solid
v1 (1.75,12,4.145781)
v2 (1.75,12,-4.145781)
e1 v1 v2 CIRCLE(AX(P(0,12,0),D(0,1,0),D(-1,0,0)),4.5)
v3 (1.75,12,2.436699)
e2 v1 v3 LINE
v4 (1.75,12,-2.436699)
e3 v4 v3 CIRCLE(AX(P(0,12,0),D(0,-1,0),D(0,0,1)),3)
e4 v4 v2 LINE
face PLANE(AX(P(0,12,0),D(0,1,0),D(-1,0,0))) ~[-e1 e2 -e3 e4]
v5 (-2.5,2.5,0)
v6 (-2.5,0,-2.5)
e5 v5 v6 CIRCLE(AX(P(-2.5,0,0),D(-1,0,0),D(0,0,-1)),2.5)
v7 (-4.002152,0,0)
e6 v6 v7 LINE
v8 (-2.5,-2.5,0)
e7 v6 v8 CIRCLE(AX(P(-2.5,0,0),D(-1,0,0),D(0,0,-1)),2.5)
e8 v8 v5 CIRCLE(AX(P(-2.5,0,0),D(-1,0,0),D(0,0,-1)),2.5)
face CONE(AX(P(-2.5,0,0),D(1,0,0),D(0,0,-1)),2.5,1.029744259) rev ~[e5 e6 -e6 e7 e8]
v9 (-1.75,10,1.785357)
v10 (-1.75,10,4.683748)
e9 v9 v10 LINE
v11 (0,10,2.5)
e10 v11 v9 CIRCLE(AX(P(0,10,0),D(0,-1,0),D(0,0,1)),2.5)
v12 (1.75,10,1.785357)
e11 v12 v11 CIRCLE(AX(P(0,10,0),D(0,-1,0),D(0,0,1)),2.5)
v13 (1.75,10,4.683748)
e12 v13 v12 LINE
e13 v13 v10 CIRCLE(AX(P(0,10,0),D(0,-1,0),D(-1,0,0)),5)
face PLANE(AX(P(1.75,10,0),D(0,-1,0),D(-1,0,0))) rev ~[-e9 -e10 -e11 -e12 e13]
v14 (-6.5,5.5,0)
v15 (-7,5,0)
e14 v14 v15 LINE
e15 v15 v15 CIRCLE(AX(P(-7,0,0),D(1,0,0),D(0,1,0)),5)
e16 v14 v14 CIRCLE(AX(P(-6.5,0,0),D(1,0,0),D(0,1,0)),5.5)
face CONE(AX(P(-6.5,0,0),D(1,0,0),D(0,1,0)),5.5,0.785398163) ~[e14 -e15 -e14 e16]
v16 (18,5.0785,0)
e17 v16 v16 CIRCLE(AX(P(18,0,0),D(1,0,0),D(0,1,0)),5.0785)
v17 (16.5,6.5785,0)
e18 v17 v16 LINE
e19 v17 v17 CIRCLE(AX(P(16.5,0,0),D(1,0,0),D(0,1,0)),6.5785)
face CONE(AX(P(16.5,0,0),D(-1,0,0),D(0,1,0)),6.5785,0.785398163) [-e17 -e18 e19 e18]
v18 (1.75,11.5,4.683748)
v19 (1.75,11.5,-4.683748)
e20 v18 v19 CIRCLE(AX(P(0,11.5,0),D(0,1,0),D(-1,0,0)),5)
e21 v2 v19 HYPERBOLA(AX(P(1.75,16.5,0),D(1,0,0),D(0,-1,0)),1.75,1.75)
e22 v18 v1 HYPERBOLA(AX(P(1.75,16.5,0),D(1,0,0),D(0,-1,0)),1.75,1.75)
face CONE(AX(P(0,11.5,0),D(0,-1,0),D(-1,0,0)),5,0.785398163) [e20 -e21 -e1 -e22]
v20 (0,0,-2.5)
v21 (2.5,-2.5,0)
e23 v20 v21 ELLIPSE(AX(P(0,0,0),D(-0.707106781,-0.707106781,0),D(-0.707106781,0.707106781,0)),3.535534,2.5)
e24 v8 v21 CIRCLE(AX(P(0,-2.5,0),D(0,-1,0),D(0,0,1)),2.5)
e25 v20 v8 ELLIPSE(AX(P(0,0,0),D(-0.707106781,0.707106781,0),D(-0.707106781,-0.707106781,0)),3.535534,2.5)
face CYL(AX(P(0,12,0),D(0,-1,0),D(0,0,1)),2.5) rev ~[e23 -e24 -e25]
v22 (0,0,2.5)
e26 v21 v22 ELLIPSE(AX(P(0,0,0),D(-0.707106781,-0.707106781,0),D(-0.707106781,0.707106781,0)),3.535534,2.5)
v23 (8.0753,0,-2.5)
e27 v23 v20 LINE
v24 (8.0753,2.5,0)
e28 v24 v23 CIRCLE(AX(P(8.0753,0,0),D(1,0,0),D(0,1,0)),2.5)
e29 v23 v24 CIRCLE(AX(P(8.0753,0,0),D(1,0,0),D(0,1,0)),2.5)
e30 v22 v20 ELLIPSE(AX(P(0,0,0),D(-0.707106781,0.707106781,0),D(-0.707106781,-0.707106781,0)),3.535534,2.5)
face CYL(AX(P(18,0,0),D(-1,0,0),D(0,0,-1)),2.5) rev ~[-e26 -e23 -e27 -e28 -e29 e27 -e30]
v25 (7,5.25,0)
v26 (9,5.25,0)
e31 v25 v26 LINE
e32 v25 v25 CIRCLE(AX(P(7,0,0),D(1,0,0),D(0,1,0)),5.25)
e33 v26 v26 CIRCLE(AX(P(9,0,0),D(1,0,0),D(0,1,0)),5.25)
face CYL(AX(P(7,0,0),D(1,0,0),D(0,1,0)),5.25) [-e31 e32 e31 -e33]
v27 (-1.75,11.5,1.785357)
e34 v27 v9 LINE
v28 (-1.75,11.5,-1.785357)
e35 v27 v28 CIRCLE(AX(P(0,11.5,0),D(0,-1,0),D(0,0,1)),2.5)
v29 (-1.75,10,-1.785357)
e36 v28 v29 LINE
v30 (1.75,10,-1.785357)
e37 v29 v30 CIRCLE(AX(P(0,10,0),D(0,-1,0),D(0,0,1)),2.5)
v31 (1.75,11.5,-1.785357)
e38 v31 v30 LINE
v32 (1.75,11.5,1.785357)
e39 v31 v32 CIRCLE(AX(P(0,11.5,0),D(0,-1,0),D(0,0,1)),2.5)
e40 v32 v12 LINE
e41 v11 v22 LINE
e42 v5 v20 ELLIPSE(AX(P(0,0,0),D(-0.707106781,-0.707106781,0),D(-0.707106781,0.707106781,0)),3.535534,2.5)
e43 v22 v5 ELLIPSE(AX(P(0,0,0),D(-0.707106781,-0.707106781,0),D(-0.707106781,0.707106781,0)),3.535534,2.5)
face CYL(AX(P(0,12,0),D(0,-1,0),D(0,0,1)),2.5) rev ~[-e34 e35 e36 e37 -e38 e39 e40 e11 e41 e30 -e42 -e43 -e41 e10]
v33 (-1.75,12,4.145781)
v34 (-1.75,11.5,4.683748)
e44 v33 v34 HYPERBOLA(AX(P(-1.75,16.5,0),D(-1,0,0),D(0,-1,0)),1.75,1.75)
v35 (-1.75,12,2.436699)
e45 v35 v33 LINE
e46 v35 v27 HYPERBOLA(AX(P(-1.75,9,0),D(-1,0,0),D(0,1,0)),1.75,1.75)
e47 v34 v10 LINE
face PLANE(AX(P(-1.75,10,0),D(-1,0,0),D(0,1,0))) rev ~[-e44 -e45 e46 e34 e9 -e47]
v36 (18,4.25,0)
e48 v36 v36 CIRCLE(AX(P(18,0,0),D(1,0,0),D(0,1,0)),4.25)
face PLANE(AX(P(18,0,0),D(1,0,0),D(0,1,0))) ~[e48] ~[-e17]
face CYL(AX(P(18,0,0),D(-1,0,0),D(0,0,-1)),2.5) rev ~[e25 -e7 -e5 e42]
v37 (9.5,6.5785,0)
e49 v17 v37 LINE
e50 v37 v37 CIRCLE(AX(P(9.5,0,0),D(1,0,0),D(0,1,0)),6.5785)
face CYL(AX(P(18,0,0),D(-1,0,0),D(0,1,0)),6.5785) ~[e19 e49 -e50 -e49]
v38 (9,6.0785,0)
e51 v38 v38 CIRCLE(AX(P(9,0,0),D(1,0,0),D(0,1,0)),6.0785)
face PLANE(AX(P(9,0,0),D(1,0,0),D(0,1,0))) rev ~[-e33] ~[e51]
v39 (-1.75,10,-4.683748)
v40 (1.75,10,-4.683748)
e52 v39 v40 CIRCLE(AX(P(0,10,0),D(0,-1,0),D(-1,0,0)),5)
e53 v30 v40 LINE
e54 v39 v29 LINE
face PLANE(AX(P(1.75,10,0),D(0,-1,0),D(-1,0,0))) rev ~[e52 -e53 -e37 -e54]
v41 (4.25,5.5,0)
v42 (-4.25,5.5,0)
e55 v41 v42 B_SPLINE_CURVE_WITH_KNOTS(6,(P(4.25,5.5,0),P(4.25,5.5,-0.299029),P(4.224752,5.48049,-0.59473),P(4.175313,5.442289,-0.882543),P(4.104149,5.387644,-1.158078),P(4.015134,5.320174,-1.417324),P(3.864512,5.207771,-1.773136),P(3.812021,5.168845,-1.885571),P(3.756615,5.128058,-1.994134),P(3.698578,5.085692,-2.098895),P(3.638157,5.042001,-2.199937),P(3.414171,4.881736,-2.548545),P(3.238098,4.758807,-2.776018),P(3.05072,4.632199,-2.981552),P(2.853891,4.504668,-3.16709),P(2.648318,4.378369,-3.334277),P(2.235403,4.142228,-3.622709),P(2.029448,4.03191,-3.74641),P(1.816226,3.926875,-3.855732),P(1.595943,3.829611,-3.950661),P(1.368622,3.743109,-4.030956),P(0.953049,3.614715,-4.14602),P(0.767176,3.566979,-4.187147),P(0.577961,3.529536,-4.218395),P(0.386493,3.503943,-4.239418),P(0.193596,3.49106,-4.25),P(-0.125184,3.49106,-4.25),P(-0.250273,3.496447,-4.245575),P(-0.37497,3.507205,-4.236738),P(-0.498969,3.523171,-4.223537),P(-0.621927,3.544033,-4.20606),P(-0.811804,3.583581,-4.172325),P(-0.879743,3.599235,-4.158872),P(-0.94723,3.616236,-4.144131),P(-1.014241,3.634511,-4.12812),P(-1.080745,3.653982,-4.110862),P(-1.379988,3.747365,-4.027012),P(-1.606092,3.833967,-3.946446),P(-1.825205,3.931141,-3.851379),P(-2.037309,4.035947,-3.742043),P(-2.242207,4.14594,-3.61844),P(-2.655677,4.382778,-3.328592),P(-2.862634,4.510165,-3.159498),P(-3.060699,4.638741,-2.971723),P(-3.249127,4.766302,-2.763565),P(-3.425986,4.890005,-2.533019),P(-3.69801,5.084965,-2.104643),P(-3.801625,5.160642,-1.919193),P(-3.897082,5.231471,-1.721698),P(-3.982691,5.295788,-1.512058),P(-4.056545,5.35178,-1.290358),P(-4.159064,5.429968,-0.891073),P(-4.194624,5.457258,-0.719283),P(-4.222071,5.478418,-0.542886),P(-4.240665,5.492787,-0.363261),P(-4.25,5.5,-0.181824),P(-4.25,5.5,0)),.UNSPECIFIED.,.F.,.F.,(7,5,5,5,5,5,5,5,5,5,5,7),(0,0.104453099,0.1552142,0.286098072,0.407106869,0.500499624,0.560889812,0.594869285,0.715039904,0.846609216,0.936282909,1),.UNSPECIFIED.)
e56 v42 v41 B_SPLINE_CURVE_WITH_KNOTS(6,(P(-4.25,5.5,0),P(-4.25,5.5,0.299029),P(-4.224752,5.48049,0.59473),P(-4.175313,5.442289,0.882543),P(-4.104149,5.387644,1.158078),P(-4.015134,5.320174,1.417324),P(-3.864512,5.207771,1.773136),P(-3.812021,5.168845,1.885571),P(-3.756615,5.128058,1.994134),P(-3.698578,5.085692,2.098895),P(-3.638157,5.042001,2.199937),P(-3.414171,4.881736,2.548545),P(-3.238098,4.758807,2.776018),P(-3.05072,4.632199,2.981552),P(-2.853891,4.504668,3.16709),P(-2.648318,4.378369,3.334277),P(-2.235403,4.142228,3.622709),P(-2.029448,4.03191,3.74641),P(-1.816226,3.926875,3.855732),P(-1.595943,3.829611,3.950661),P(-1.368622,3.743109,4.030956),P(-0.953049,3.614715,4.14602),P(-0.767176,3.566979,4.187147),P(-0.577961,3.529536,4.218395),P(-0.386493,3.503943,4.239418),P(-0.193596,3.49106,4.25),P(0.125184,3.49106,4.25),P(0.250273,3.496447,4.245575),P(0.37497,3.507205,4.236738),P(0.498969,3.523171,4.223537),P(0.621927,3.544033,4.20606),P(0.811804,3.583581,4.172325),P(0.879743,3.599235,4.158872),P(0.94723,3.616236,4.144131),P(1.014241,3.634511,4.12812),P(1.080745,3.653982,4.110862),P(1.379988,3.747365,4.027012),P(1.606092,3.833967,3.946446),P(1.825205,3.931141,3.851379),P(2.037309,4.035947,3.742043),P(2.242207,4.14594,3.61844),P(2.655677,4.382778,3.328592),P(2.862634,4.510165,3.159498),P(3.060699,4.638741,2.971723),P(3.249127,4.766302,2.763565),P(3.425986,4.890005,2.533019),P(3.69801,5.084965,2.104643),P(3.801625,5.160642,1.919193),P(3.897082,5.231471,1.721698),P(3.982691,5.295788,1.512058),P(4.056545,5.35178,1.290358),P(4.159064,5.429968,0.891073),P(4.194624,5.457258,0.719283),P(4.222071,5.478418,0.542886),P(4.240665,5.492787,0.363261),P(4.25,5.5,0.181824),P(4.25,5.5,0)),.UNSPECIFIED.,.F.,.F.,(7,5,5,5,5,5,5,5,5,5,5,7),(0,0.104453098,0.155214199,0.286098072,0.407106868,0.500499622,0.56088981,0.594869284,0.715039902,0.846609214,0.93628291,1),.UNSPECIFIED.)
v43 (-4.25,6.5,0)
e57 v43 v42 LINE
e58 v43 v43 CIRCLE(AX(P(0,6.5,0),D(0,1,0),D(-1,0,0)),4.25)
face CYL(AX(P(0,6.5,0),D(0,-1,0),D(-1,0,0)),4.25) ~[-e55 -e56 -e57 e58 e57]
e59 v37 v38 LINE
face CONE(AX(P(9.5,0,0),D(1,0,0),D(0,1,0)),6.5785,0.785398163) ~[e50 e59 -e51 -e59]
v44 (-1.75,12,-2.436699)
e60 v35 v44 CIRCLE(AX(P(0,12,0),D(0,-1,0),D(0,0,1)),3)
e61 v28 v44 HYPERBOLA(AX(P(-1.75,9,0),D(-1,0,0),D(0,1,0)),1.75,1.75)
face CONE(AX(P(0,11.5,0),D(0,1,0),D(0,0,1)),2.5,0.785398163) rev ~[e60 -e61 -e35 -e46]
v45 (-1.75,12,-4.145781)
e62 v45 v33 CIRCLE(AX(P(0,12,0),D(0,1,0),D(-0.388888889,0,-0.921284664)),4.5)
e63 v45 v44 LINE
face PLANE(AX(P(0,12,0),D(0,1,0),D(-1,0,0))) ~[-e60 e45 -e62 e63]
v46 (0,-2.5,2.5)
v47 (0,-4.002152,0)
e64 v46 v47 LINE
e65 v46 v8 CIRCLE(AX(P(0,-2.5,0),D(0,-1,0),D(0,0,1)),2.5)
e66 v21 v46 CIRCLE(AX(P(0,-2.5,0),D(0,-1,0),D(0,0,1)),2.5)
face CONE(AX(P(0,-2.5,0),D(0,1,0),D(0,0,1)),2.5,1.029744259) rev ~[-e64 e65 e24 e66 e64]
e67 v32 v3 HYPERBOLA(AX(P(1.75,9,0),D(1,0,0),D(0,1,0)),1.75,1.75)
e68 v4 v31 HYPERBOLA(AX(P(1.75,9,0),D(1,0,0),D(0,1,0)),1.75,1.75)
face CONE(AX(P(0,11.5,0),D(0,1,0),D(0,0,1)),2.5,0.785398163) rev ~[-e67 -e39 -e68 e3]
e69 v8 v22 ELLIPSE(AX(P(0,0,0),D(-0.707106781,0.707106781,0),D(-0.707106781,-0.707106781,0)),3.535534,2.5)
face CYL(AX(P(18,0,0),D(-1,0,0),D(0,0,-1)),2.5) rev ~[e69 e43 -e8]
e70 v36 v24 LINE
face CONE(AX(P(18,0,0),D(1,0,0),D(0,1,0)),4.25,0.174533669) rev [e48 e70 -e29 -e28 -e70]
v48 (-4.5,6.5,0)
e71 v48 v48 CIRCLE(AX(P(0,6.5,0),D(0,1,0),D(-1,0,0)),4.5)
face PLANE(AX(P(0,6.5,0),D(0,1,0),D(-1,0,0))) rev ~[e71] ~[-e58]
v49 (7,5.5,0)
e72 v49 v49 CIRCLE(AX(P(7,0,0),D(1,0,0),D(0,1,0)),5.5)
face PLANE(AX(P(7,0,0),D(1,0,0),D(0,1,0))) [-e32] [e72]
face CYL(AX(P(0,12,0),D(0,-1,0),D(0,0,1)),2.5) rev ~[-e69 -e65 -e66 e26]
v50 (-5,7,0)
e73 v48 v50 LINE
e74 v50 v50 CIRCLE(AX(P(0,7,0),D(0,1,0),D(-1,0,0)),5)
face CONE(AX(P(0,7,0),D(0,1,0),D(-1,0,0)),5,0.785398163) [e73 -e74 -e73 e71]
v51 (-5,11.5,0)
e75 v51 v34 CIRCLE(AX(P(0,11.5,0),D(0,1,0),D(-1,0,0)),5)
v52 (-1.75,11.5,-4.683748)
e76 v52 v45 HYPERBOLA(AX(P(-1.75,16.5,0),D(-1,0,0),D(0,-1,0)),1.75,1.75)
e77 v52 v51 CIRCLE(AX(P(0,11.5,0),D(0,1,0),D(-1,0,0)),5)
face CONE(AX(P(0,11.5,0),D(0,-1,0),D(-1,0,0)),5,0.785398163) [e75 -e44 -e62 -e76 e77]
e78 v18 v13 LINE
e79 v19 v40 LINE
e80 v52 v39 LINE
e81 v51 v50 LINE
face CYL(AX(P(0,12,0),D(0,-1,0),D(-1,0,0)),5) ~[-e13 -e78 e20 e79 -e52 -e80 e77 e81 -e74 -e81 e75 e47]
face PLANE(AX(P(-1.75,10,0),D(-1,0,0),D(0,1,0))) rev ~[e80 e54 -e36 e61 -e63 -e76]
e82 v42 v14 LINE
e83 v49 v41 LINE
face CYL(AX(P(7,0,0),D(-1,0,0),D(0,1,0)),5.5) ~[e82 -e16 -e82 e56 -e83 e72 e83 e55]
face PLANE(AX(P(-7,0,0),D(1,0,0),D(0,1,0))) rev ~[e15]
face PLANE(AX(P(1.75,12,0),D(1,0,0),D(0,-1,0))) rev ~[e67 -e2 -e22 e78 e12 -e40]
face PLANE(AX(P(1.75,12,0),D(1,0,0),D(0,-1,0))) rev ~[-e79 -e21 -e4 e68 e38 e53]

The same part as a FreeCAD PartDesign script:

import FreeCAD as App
import Part
import Sketcher
from FreeCAD import Vector
Q = App.Units.Quantity


def edges_at(feature, points):
    """Names of the edges that pass closest to the given points."""
    edges = feature.Shape.Edges
    near = lambda p: min(range(len(edges)), key=lambda i: edges[i].distToShape(Part.Vertex(*p))[0])
    return sorted({f"Edge{near(p) + 1}" for p in points})

doc = App.newDocument("Part")
body = doc.addObject("PartDesign::Body", "Body")

sketch1 = body.newObject("Sketcher::SketchObject", "Sketch")
sketch1.AttachmentSupport = (doc.getObject("XY_Plane"), [""])
sketch1.MapMode = "FlatFace"
sketch1.addGeometry(Part.LineSegment(Vector(-7, 0, 0), Vector(18, 0, 0)), False)
sketch1.addGeometry(Part.LineSegment(Vector(18, 0, 0), Vector(18, 6.58, 0)), False)
sketch1.addGeometry(Part.LineSegment(Vector(18, 6.58, 0), Vector(9, 6.58, 0)), False)
sketch1.addGeometry(Part.LineSegment(Vector(9, 6.58, 0), Vector(9, 5.25, 0)), False)
sketch1.addGeometry(Part.LineSegment(Vector(9, 5.25, 0), Vector(7, 5.25, 0)), False)
sketch1.addGeometry(Part.LineSegment(Vector(7, 5.25, 0), Vector(7, 5.5, 0)), False)
sketch1.addGeometry(Part.LineSegment(Vector(7, 5.5, 0), Vector(-7, 5.5, 0)), False)
sketch1.addGeometry(Part.LineSegment(Vector(-7, 5.5, 0), Vector(-7, 0, 0)), False)
sketch1.addConstraint(Sketcher.Constraint("Coincident", 0, 2, 1, 1))
sketch1.addConstraint(Sketcher.Constraint("Coincident", 1, 2, 2, 1))
sketch1.addConstraint(Sketcher.Constraint("Coincident", 2, 2, 3, 1))
sketch1.addConstraint(Sketcher.Constraint("Coincident", 3, 2, 4, 1))
sketch1.addConstraint(Sketcher.Constraint("Coincident", 4, 2, 5, 1))
sketch1.addConstraint(Sketcher.Constraint("Coincident", 5, 2, 6, 1))
sketch1.addConstraint(Sketcher.Constraint("Coincident", 6, 2, 7, 1))
sketch1.addConstraint(Sketcher.Constraint("Coincident", 7, 2, 0, 1))
sketch1.addConstraint(Sketcher.Constraint("Horizontal", 0))
sketch1.addConstraint(Sketcher.Constraint("Vertical", 1))
sketch1.addConstraint(Sketcher.Constraint("Horizontal", 2))
sketch1.addConstraint(Sketcher.Constraint("Vertical", 3))
sketch1.addConstraint(Sketcher.Constraint("Horizontal", 4))
sketch1.addConstraint(Sketcher.Constraint("Vertical", 5))
sketch1.addConstraint(Sketcher.Constraint("Horizontal", 6))
sketch1.addConstraint(Sketcher.Constraint("Vertical", 7))
sketch1.addConstraint(Sketcher.Constraint("PointOnObject", 0, 2, -1))
sketch1.addConstraint(Sketcher.Constraint("DistanceX", 0, 1, 0, 2, 25.0))
sketch1.addConstraint(Sketcher.Constraint("DistanceX", 2, 2, 2, 1, 9.0))
sketch1.addConstraint(Sketcher.Constraint("DistanceX", 4, 2, 4, 1, 2.0))
sketch1.addConstraint(Sketcher.Constraint("DistanceX", -1, 1, 0, 2, 18.0))
sketch1.addConstraint(Sketcher.Constraint("DistanceY", 7, 2, 7, 1, 5.5))
sketch1.addConstraint(Sketcher.Constraint("DistanceY", 5, 1, 5, 2, 0.25))
sketch1.addConstraint(Sketcher.Constraint("DistanceY", 1, 1, 1, 2, 6.5785))
revolution = body.newObject("PartDesign::Revolution", "Revolution")
revolution.Profile = sketch1
revolution.ReferenceAxis = (sketch1, ["H_Axis"])
revolution.Angle = 360
doc.recompute()

chamfer = body.newObject("PartDesign::Chamfer", "Chamfer")
chamfer.Base = (revolution, edges_at(revolution, [(18, -6.579, 0)]))
chamfer.Size = 1.5
doc.recompute()

chamfer2 = body.newObject("PartDesign::Chamfer", "Chamfer001")
chamfer2.Base = (chamfer, edges_at(chamfer, [(9, -6.579, 0)]))
chamfer2.Size = 0.5

sketch2 = body.newObject("Sketcher::SketchObject", "Sketch001")
sketch2.AttachmentSupport = (doc.getObject("XY_Plane"), [""])
sketch2.MapMode = "FlatFace"
sketch2.addGeometry(Part.LineSegment(Vector(0, 0, 0), Vector(0, 12, 0)), False)
sketch2.addGeometry(Part.LineSegment(Vector(0, 12, 0), Vector(-5, 12, 0)), False)
sketch2.addGeometry(Part.LineSegment(Vector(-5, 12, 0), Vector(-5, 6.5, 0)), False)
sketch2.addGeometry(Part.LineSegment(Vector(-5, 6.5, 0), Vector(-4.2, 6.5, 0)), False)
sketch2.addGeometry(Part.LineSegment(Vector(-4.2, 6.5, 0), Vector(-4.2, 0, 0)), False)
sketch2.addGeometry(Part.LineSegment(Vector(-4.2, 0, 0), Vector(0, 0, 0)), False)
sketch2.addConstraint(Sketcher.Constraint("Coincident", 0, 2, 1, 1))
sketch2.addConstraint(Sketcher.Constraint("Coincident", 1, 2, 2, 1))
sketch2.addConstraint(Sketcher.Constraint("Coincident", 2, 2, 3, 1))
sketch2.addConstraint(Sketcher.Constraint("Coincident", 3, 2, 4, 1))
sketch2.addConstraint(Sketcher.Constraint("Coincident", 4, 2, 5, 1))
sketch2.addConstraint(Sketcher.Constraint("Coincident", 5, 2, 0, 1))
sketch2.addConstraint(Sketcher.Constraint("Vertical", 0))
sketch2.addConstraint(Sketcher.Constraint("Horizontal", 1))
sketch2.addConstraint(Sketcher.Constraint("Vertical", 2))
sketch2.addConstraint(Sketcher.Constraint("Horizontal", 3))
sketch2.addConstraint(Sketcher.Constraint("Vertical", 4))
sketch2.addConstraint(Sketcher.Constraint("Horizontal", 5))
sketch2.addConstraint(Sketcher.Constraint("Coincident", 5, 2, -1, 1))
sketch2.addConstraint(Sketcher.Constraint("DistanceY", 0, 1, 0, 2, 12.0))
sketch2.addConstraint(Sketcher.Constraint("DistanceY", 2, 2, 2, 1, 5.5))
sketch2.addConstraint(Sketcher.Constraint("DistanceX", 1, 2, 1, 1, 5.0))
sketch2.addConstraint(Sketcher.Constraint("DistanceX", 3, 1, 3, 2, 0.75))
revolution2 = body.newObject("PartDesign::Revolution", "Revolution001")
revolution2.Profile = sketch2
revolution2.ReferenceAxis = (sketch2, ["V_Axis"])
revolution2.Angle = 360
doc.recompute()

chamfer3 = body.newObject("PartDesign::Chamfer", "Chamfer002")
chamfer3.Base = (revolution2, edges_at(revolution2, [(5, 12, 0), (5, 6.5, 0), (-7, -5.5, 0)]))
chamfer3.Size = 0.5

sketch3 = body.newObject("Sketcher::SketchObject", "Sketch002")
sketch3.AttachmentSupport = (doc.getObject("XY_Plane"), [""])
sketch3.MapMode = "FlatFace"
sketch3.addGeometry(Part.LineSegment(Vector(18, 0, 0), Vector(18, 4.2, 0)), False)
sketch3.addGeometry(Part.LineSegment(Vector(18, 4.2, 0), Vector(8.1, 2.5, 0)), False)
sketch3.addGeometry(Part.LineSegment(Vector(8.1, 2.5, 0), Vector(8.1, 0, 0)), False)
sketch3.addGeometry(Part.LineSegment(Vector(8.1, 0, 0), Vector(18, 0, 0)), False)
sketch3.addConstraint(Sketcher.Constraint("Coincident", 0, 2, 1, 1))
sketch3.addConstraint(Sketcher.Constraint("Coincident", 1, 2, 2, 1))
sketch3.addConstraint(Sketcher.Constraint("Coincident", 2, 2, 3, 1))
sketch3.addConstraint(Sketcher.Constraint("Coincident", 3, 2, 0, 1))
sketch3.addConstraint(Sketcher.Constraint("Vertical", 0))
sketch3.addConstraint(Sketcher.Constraint("Vertical", 2))
sketch3.addConstraint(Sketcher.Constraint("Horizontal", 3))
sketch3.addConstraint(Sketcher.Constraint("PointOnObject", 2, 2, -1))
sketch3.addConstraint(Sketcher.Constraint("Angle", 1, Q("-170 deg")))
sketch3.addConstraint(Sketcher.Constraint("DistanceY", 2, 2, 2, 1, 2.5))
sketch3.addConstraint(Sketcher.Constraint("DistanceX", -1, 1, 0, 2, 18.0))
sketch3.addConstraint(Sketcher.Constraint("DistanceY", 0, 1, 0, 2, 4.25))
groove = body.newObject("PartDesign::Groove", "Groove")
groove.Profile = sketch3
groove.ReferenceAxis = (sketch3, ["H_Axis"])
groove.Angle = 360

sketch4 = body.newObject("Sketcher::SketchObject", "Sketch003")
sketch4.AttachmentSupport = (doc.getObject("YZ_Plane"), [""])
sketch4.MapMode = "FlatFace"
sketch4.AttachmentOffset = App.Placement(Vector(0, 0, 18), App.Rotation())
sketch4.addGeometry(Part.Circle(Vector(0, 0, 0), Vector(0, 0, 1), 2.5), False)
sketch4.addConstraint(Sketcher.Constraint("Coincident", 0, 3, -1, 1))
sketch4.addConstraint(Sketcher.Constraint("Diameter", 0, 5.0))
doc.recompute()
hole = body.newObject("PartDesign::Hole", "Hole")
hole.Profile = sketch4
hole.ThreadType = "None"
hole.Diameter = 5
hole.DepthType = "Dimension"
hole.Depth = 20.5
hole.DrillPoint = "Angled"
hole.DrillPointAngle = 118

sketch5 = body.newObject("Sketcher::SketchObject", "Sketch004")
sketch5.AttachmentSupport = (doc.getObject("XZ_Plane"), [""])
sketch5.MapMode = "FlatFace"
sketch5.AttachmentOffset = App.Placement(Vector(0, 0, -12), App.Rotation())
sketch5.addGeometry(Part.Circle(Vector(0, 0, 0), Vector(0, 0, 1), 2.5), False)
sketch5.addConstraint(Sketcher.Constraint("Coincident", 0, 3, -1, 1))
sketch5.addConstraint(Sketcher.Constraint("Diameter", 0, 5.0))
doc.recompute()
hole2 = body.newObject("PartDesign::Hole", "Hole001")
hole2.Profile = sketch5
hole2.ThreadType = "None"
hole2.Diameter = 5
hole2.DepthType = "Dimension"
hole2.Depth = 14.5
hole2.DrillPoint = "Angled"
hole2.DrillPointAngle = 118
hole2.Reversed = True
doc.recompute()

chamfer4 = body.newObject("PartDesign::Chamfer", "Chamfer003")
chamfer4.Base = (hole2, edges_at(hole2, [(0, 12, -2.5)]))
chamfer4.Size = 0.5

sketch6 = body.newObject("Sketcher::SketchObject", "Sketch005")
sketch6.AttachmentSupport = (doc.getObject("XY_Plane"), [""])
sketch6.MapMode = "FlatFace"
sketch6.addGeometry(Part.LineSegment(Vector(1.8, 12, 0), Vector(-1.8, 12, 0)), False)
sketch6.addGeometry(Part.LineSegment(Vector(-1.8, 12, 0), Vector(-1.8, 10, 0)), False)
sketch6.addGeometry(Part.LineSegment(Vector(-1.8, 10, 0), Vector(1.8, 10, 0)), False)
sketch6.addGeometry(Part.LineSegment(Vector(1.8, 10, 0), Vector(1.8, 12, 0)), False)
sketch6.addConstraint(Sketcher.Constraint("Coincident", 0, 2, 1, 1))
sketch6.addConstraint(Sketcher.Constraint("Coincident", 1, 2, 2, 1))
sketch6.addConstraint(Sketcher.Constraint("Coincident", 2, 2, 3, 1))
sketch6.addConstraint(Sketcher.Constraint("Coincident", 3, 2, 0, 1))
sketch6.addConstraint(Sketcher.Constraint("Horizontal", 0))
sketch6.addConstraint(Sketcher.Constraint("Vertical", 1))
sketch6.addConstraint(Sketcher.Constraint("Horizontal", 2))
sketch6.addConstraint(Sketcher.Constraint("Vertical", 3))
sketch6.addConstraint(Sketcher.Constraint("DistanceY", 1, 2, 1, 1, 2.0))
sketch6.addConstraint(Sketcher.Constraint("DistanceX", 0, 2, 0, 1, 3.5))
sketch6.addConstraint(Sketcher.Constraint("DistanceY", -1, 1, 0, 2, 12.0))
sketch6.addConstraint(Sketcher.Constraint("DistanceX", 0, 2, -1, 1, 1.75))
pocket1 = body.newObject("PartDesign::Pocket", "Pocket")
pocket1.Profile = sketch6
pocket1.Type = "ThroughAll"
pocket1.Midplane = True

doc.recompute()
